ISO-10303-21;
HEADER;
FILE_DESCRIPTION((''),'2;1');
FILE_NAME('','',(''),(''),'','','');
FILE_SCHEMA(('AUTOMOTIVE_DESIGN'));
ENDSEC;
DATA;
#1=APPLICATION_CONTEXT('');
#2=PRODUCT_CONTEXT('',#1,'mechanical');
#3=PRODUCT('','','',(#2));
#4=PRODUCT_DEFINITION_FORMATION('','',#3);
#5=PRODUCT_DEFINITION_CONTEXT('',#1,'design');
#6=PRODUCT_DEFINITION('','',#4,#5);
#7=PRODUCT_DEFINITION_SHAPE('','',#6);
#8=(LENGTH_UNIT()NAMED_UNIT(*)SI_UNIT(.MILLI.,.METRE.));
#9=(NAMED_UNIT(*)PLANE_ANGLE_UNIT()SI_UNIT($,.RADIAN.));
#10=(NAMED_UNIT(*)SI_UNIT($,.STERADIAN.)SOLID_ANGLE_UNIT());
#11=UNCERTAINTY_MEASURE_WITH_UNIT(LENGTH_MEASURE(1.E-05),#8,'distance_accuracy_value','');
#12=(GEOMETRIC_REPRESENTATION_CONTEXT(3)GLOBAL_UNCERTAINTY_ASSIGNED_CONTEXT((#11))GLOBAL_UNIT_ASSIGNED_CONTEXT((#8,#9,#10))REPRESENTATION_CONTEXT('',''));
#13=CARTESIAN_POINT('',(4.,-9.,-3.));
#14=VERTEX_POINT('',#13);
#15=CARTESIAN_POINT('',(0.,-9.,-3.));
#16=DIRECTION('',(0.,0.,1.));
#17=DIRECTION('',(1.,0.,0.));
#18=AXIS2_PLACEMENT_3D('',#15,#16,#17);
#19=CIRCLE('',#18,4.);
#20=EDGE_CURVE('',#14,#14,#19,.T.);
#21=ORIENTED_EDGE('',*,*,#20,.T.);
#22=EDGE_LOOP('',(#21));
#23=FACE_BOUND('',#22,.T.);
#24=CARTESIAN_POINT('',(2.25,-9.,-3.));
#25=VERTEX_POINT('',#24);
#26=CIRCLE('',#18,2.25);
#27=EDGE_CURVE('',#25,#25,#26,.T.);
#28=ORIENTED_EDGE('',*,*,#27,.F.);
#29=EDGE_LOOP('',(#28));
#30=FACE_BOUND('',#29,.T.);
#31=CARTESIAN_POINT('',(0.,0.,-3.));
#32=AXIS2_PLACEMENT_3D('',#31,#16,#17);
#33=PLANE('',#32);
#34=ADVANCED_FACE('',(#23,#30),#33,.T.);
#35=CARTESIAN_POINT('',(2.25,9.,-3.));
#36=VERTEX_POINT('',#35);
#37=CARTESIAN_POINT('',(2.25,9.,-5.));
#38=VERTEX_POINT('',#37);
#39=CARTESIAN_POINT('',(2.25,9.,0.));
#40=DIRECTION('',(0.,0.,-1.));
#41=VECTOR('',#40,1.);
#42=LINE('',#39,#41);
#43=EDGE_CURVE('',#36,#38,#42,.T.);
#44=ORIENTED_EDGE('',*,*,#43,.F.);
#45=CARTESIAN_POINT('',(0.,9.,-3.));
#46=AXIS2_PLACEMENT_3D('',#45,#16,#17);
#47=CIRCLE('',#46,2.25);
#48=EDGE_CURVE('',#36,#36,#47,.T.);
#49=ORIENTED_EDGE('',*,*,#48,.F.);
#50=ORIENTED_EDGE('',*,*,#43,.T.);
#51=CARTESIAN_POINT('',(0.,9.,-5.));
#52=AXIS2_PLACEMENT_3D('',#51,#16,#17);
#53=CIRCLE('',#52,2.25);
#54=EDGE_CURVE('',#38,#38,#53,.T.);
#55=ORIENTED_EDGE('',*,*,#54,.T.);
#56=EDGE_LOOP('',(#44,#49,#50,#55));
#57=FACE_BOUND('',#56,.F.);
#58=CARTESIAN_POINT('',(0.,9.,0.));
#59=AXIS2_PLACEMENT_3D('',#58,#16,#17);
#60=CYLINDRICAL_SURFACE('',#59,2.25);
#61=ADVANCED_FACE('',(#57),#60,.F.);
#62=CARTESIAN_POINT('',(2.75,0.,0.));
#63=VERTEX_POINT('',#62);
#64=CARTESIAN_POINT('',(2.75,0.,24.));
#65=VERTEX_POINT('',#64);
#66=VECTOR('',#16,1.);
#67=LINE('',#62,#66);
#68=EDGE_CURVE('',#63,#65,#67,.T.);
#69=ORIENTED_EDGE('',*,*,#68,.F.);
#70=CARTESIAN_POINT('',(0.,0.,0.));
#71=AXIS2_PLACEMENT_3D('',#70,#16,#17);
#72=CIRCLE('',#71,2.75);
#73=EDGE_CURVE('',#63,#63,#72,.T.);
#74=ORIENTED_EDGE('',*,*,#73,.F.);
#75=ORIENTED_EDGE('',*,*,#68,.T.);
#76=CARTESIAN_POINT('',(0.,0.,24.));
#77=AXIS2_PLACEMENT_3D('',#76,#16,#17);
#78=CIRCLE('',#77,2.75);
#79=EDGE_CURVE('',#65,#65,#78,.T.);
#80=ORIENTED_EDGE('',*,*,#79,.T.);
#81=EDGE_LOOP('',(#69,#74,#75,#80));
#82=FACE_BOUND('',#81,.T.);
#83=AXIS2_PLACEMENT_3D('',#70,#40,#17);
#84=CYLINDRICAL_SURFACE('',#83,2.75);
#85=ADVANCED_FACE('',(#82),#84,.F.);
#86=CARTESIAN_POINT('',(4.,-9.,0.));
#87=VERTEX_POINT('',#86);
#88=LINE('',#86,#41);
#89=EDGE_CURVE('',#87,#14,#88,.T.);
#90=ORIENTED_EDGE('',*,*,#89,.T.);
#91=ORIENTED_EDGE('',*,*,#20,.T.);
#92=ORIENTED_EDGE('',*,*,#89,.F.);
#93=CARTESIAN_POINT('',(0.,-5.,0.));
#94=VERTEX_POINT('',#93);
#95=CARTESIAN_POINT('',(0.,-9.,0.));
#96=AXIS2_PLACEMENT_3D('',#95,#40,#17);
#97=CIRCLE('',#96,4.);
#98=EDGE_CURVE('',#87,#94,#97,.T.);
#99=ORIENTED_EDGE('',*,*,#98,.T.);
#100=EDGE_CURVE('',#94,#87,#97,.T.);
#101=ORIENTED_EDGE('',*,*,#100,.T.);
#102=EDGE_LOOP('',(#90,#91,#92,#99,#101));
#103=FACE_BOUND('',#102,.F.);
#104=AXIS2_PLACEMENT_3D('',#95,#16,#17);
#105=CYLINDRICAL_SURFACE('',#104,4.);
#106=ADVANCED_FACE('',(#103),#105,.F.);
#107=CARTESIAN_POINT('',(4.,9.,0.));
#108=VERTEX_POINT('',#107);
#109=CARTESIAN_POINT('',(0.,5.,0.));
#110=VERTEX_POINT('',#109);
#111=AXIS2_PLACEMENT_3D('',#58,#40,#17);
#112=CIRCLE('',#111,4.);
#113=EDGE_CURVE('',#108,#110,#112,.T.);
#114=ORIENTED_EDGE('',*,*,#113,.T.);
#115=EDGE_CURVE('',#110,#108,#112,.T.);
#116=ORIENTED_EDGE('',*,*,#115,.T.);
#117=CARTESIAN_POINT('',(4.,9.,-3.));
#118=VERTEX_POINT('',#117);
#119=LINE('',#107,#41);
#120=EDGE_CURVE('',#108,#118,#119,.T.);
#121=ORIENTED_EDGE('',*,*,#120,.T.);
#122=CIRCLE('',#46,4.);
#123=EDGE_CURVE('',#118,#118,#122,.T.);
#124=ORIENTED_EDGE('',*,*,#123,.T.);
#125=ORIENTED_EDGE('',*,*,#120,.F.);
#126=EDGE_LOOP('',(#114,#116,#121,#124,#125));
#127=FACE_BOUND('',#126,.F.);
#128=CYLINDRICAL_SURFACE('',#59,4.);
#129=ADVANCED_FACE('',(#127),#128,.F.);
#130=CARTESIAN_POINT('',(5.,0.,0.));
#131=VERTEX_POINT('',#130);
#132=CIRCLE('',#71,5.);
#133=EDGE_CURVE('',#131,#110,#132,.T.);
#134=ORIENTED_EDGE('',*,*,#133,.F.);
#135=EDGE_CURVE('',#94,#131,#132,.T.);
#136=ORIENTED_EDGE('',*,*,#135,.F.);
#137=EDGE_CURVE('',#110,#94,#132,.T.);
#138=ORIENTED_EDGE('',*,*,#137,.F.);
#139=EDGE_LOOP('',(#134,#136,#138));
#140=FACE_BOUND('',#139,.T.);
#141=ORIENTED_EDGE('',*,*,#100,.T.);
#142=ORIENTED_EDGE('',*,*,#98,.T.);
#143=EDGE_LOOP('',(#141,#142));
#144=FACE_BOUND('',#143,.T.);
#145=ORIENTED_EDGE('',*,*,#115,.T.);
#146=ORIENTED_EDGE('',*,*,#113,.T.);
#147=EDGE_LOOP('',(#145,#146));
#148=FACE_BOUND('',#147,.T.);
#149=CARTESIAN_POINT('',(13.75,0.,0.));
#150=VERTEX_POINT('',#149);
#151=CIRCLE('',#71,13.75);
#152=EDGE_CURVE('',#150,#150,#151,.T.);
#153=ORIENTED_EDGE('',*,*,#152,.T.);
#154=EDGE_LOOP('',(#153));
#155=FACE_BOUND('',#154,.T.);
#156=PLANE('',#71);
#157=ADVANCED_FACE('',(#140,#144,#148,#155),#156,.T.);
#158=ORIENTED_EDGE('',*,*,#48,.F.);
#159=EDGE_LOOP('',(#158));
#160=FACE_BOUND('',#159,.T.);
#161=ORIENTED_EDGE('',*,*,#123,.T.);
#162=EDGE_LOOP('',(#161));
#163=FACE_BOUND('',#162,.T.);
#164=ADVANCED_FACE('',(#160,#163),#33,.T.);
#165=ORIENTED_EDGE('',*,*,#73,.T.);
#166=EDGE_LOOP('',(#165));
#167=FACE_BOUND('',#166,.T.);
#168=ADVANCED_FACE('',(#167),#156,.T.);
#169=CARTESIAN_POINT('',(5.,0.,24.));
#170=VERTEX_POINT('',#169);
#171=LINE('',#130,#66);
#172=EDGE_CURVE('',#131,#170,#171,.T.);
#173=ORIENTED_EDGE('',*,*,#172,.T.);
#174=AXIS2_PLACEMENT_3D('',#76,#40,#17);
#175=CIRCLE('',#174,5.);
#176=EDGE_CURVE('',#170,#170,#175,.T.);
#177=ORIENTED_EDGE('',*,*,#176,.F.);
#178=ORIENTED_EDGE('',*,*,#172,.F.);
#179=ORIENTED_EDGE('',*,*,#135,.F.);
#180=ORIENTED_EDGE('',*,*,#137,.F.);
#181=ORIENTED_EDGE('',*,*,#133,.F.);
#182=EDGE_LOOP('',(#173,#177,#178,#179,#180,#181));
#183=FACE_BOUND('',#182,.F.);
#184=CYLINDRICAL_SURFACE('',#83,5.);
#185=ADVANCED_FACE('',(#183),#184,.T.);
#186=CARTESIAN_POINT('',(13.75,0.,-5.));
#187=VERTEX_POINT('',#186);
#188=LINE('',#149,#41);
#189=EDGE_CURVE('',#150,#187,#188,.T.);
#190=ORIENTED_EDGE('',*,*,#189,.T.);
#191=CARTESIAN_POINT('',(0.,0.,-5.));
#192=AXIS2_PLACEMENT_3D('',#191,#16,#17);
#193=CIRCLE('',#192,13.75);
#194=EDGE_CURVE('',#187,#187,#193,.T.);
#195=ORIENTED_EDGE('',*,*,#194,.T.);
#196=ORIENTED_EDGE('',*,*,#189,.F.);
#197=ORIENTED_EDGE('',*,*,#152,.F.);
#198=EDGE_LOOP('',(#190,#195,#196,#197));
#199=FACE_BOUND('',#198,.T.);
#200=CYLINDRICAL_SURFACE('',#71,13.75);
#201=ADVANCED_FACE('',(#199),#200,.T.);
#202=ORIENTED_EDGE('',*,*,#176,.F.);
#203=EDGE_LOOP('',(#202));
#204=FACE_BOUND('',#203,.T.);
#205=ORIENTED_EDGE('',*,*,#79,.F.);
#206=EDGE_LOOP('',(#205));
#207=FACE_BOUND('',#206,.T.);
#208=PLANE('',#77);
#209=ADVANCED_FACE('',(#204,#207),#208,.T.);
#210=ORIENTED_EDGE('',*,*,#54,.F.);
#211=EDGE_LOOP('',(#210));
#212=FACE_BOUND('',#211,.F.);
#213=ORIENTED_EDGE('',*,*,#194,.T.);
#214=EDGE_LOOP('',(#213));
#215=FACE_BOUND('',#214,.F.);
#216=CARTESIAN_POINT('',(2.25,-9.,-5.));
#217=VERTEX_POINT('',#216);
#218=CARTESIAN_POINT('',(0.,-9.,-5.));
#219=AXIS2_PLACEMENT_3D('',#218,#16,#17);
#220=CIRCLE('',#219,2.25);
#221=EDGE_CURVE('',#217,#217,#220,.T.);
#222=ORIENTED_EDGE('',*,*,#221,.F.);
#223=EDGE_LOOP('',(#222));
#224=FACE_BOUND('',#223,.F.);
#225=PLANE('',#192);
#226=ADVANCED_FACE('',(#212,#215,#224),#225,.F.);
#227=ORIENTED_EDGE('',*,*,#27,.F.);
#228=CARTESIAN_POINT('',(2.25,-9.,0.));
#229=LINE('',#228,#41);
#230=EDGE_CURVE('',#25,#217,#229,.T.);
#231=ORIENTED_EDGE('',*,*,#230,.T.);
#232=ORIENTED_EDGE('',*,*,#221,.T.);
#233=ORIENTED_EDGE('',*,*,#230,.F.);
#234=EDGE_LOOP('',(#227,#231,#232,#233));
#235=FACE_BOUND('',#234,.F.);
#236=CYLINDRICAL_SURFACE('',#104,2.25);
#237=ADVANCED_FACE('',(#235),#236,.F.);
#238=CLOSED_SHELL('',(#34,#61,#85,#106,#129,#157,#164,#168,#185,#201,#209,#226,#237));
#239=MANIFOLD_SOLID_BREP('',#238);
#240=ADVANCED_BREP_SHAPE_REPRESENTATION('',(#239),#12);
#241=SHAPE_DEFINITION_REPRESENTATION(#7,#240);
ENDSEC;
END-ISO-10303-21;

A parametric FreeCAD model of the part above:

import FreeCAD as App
import Part
import Sketcher

V = App.Vector

doc = App.newDocument("Part")
params = doc.addObject("Spreadsheet::Sheet", "Params")
for row, (alias, value) in enumerate([
    ("sketch1_diameter", "27.5 mm"),
    ("sketch1_diameter2", "4.5 mm"),
    ("pad1_length", "5 mm"),
    ("sketch2_diameter", "8 mm"),
    ("sketch2_diameter2", "4.5 mm"),
    ("pocket1_length", "3 mm"),
    ("sketch3_diameter", "10 mm"),
    ("sketch3_diameter2", "7 mm"),
    ("pad2_length", "24 mm"),
    ("sketch4_diameter", "7 mm"),
    ("sketch4_diameter2", "5.5 mm"),
    ("pad3_length", "24 mm"),
], start=1):
    params.set(f"A{row}", alias)
    params.set(f"B{row}", "=" + value)
    params.setAlias(f"B{row}", alias)

body = doc.addObject("PartDesign::Body", "Body")

# Sketch on XY plane
sketch1 = doc.addObject("Sketcher::SketchObject", "Sketch")
body.addObject(sketch1)
sketch1.AttachmentSupport = (doc.XY_Plane, [""])
sketch1.MapMode = "FlatFace"
sketch1.addGeometry(Part.Circle(V(0, 0, 0), V(0, 0, 1), 13.75), False)
sketch1.addGeometry(Part.Circle(V(0, -9, 0), V(0, 0, 1), 2.25), False)
sketch1.addGeometry(Part.Circle(V(0, 9, 0), V(0, 0, 1), 2.25), False)
sketch1.addConstraint(Sketcher.Constraint("Coincident", 0, 3, -1, 1))
sketch1.addConstraint(Sketcher.Constraint("Equal", 1, 2))
sketch1.addConstraint(Sketcher.Constraint("Symmetric", 1, 3, 2, 3, -1, 1))
sketch1.addConstraint(Sketcher.Constraint("PointOnObject", 1, 3, -2))
sketch1.addConstraint(Sketcher.Constraint("Diameter", 0, 27.5))
sketch1.addConstraint(Sketcher.Constraint("Diameter", 1, 4.5))
sketch1.addConstraint(Sketcher.Constraint("DistanceY", 1, 3, 2, 3, 18.0))
sketch1.setExpression("Constraints[4]", "Params.sketch1_diameter")
sketch1.setExpression("Constraints[5]", "Params.sketch1_diameter2")
pad1 = doc.addObject("PartDesign::Pad", "Pad")
body.addObject(pad1)
pad1.Profile = sketch1
pad1.setExpression("Length", "Params.pad1_length")
pad1.Reversed = True

# Sketch on XY plane
sketch2 = doc.addObject("Sketcher::SketchObject", "Sketch001")
body.addObject(sketch2)
sketch2.AttachmentSupport = (doc.XY_Plane, [""])
sketch2.MapMode = "FlatFace"
sketch2.addGeometry(Part.Circle(V(0, -9, 0), V(0, 0, 1), 4), False)
sketch2.addGeometry(Part.Circle(V(0, -9, 0), V(0, 0, 1), 2.25), False)
sketch2.addGeometry(Part.Circle(V(0, 9, 0), V(0, 0, 1), 4), False)
sketch2.addGeometry(Part.Circle(V(0, 9, 0), V(0, 0, 1), 2.25), False)
sketch2.addConstraint(Sketcher.Constraint("Coincident", 1, 3, 0, 3))
sketch2.addConstraint(Sketcher.Constraint("Coincident", 3, 3, 2, 3))
sketch2.addConstraint(Sketcher.Constraint("Equal", 0, 2))
sketch2.addConstraint(Sketcher.Constraint("Equal", 1, 3))
sketch2.addConstraint(Sketcher.Constraint("Symmetric", 0, 3, 2, 3, -1, 1))
sketch2.addConstraint(Sketcher.Constraint("PointOnObject", 0, 3, -2))
sketch2.addConstraint(Sketcher.Constraint("Diameter", 0, 8.0))
sketch2.addConstraint(Sketcher.Constraint("Diameter", 1, 4.5))
sketch2.addConstraint(Sketcher.Constraint("DistanceY", 0, 3, 2, 3, 18.0))
sketch2.setExpression("Constraints[6]", "Params.sketch2_diameter")
sketch2.setExpression("Constraints[7]", "Params.sketch2_diameter2")
pocket1 = doc.addObject("PartDesign::Pocket", "Pocket")
body.addObject(pocket1)
pocket1.Profile = sketch2
pocket1.setExpression("Length", "Params.pocket1_length")

# Sketch on XY plane
sketch3 = doc.addObject("Sketcher::SketchObject", "Sketch002")
body.addObject(sketch3)
sketch3.AttachmentSupport = (doc.XY_Plane, [""])
sketch3.MapMode = "FlatFace"
sketch3.addGeometry(Part.Circle(V(0, 0, 0), V(0, 0, 1), 5), False)
sketch3.addGeometry(Part.Circle(V(0, 0, 0), V(0, 0, 1), 3.5), False)
sketch3.addConstraint(Sketcher.Constraint("Coincident", 0, 3, -1, 1))
sketch3.addConstraint(Sketcher.Constraint("Coincident", 1, 3, -1, 1))
sketch3.addConstraint(Sketcher.Constraint("Diameter", 0, 10.0))
sketch3.addConstraint(Sketcher.Constraint("Diameter", 1, 7.0))
sketch3.setExpression("Constraints[2]", "Params.sketch3_diameter")
sketch3.setExpression("Constraints[3]", "Params.sketch3_diameter2")
pad2 = doc.addObject("PartDesign::Pad", "Pad001")
body.addObject(pad2)
pad2.Profile = sketch3
pad2.setExpression("Length", "Params.pad2_length")

# Sketch on XY plane
sketch4 = doc.addObject("Sketcher::SketchObject", "Sketch003")
body.addObject(sketch4)
sketch4.AttachmentSupport = (doc.XY_Plane, [""])
sketch4.MapMode = "FlatFace"
sketch4.addGeometry(Part.Circle(V(0, 0, 0), V(0, 0, 1), 3.5), False)
sketch4.addGeometry(Part.Circle(V(0, 0, 0), V(0, 0, 1), 2.75), False)
sketch4.addConstraint(Sketcher.Constraint("Coincident", 0, 3, -1, 1))
sketch4.addConstraint(Sketcher.Constraint("Coincident", 1, 3, -1, 1))
sketch4.addConstraint(Sketcher.Constraint("Diameter", 0, 7.0))
sketch4.addConstraint(Sketcher.Constraint("Diameter", 1, 5.5))
sketch4.setExpression("Constraints[2]", "Params.sketch4_diameter")
sketch4.setExpression("Constraints[3]", "Params.sketch4_diameter2")
pad3 = doc.addObject("PartDesign::Pad", "Pad002")
body.addObject(pad3)
pad3.Profile = sketch4
pad3.setExpression("Length", "Params.pad3_length")

doc.recompute()
